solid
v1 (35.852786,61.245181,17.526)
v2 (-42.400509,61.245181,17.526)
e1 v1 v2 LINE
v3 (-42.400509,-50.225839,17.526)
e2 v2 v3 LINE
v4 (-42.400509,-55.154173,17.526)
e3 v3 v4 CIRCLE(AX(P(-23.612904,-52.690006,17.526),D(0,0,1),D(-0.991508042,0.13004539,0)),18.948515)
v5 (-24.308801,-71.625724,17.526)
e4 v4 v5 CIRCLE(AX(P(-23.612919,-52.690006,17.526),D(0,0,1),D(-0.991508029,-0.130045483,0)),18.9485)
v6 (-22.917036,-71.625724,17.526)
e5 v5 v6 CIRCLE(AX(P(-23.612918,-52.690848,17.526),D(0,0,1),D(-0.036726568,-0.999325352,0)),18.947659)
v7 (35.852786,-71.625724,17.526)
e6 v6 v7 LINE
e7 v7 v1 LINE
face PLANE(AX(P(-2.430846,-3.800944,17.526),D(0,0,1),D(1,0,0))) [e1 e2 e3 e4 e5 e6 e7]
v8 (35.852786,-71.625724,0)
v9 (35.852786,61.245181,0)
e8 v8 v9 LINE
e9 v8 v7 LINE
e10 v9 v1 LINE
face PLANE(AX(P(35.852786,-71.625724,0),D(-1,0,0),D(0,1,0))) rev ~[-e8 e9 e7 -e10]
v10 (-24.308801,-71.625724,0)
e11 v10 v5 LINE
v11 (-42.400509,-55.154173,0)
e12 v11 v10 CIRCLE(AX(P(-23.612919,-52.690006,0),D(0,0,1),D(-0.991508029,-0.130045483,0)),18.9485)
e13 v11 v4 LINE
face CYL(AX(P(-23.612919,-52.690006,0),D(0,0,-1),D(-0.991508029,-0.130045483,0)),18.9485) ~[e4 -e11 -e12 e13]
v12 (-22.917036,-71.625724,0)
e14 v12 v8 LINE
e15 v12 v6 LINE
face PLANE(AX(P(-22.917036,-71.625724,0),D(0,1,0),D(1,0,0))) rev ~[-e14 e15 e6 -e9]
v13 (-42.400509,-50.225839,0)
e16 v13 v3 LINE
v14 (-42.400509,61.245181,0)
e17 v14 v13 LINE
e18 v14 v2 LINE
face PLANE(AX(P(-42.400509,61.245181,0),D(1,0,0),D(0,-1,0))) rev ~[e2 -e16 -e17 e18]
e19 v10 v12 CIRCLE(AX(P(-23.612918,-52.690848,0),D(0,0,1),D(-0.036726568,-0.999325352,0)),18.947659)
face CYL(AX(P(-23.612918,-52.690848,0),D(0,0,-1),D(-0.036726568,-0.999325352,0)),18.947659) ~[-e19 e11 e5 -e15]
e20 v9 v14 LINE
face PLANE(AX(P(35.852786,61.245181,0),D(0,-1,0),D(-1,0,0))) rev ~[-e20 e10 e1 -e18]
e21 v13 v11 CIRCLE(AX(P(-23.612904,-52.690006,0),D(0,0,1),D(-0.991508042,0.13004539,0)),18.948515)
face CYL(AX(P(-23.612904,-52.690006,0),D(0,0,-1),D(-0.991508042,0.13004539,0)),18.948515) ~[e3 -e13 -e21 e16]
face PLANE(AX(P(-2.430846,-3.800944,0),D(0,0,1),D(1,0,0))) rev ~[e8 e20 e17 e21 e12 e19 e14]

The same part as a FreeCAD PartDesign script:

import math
import FreeCAD as App
import Part
import Sketcher

V = App.Vector
Q = App.Units.Quantity

doc = App.newDocument("Part")
params = doc.addObject("Spreadsheet::Sheet", "Params")
for row, (alias, value) in enumerate([
    ("pad1_length", "0.69 in"),
], start=1):
    params.set(f"A{row}", alias)
    params.set(f"B{row}", "=" + value)
    params.setAlias(f"B{row}", alias)

body = doc.addObject("PartDesign::Body", "Body")

# Sketch on XY plane
sketch1 = body.newObject("Sketcher::SketchObject", "Sketch")
sketch1.AttachmentSupport = (doc.getObject("XY_Plane"), [""])
sketch1.MapMode = "FlatFace"
sketch1.addGeometry([
    Part.LineSegment(V(35.852786, 61.245181, 0), V(-42.400509, 61.245181, 0)),  # 0
    Part.LineSegment(V(-42.400509, 61.245181, 0), V(-42.400509, -50.225839, 0)),  # 1
    Part.ArcOfCircle(Part.Circle(V(-23.612904, -52.690006, 0), V(0, 0, 1), 18.948515), math.radians(172.527785), math.radians(187.472215)),  # 2
    Part.ArcOfCircle(Part.Circle(V(-23.612919, -52.690006, 0), V(0, 0, 1), 18.9485), math.radians(-172.527779), math.radians(-92.104656)),  # 3
    Part.ArcOfCircle(Part.Circle(V(-23.612918, -52.690848, 0), V(0, 0, 1), 18.947659), math.radians(-92.104751), math.radians(-87.895249)),  # 4
    Part.LineSegment(V(-22.917036, -71.625724, 0), V(35.852786, -71.625724, 0)),  # 5
    Part.LineSegment(V(35.852786, -71.625724, 0), V(35.852786, 61.245181, 0)),  # 6
], False)
sketch1.addConstraint([
    Sketcher.Constraint("Coincident", 0, 2, 1, 1),
    Sketcher.Constraint("Coincident", 1, 2, 2, 1),
    Sketcher.Constraint("Coincident", 2, 2, 3, 1),
    Sketcher.Constraint("Coincident", 3, 2, 4, 1),
    Sketcher.Constraint("Coincident", 4, 2, 5, 1),
    Sketcher.Constraint("Coincident", 5, 2, 6, 1),
    Sketcher.Constraint("Coincident", 6, 2, 0, 1),
    Sketcher.Constraint("Horizontal", 0),
    Sketcher.Constraint("Vertical", 1),
    Sketcher.Constraint("Horizontal", 5),
    Sketcher.Constraint("Vertical", 6),
    Sketcher.Constraint("Radius", 3, Q("18.9485 mm")),
    Sketcher.Constraint("Radius", 4, Q("18.947659 mm")),
    Sketcher.Constraint("Radius", 2, Q("18.948515 mm")),
    Sketcher.Constraint("DistanceY", 1, 2, 1, 1, Q("111.47102 mm")),
    Sketcher.Constraint("DistanceX", 3, 2, -1, 1, Q("24.308801 mm")),
    Sketcher.Constraint("DistanceX", 0, 2, 0, 1, Q("78.253295 mm")),
    Sketcher.Constraint("DistanceX", 5, 1, 5, 2, Q("58.769822 mm")),
    Sketcher.Constraint("DistanceY", 6, 1, 6, 2, Q("132.870905 mm")),
    Sketcher.Constraint("DistanceX", 3, 3, -1, 1, Q("23.612919 mm")),
    Sketcher.Constraint("DistanceX", 4, 3, -1, 1, Q("23.612918 mm")),
    Sketcher.Constraint("DistanceX", 0, 2, -1, 1, Q("42.400509 mm")),
    Sketcher.Constraint("DistanceY", -1, 1, 0, 2, Q("61.245181 mm")),
    Sketcher.Constraint("DistanceX", 2, 2, -1, 1, Q("42.400509 mm")),
])
pad1 = body.newObject("PartDesign::Pad", "Pad")
pad1.Profile = sketch1
pad1.setExpression("Length", "Params.pad1_length")

doc.recompute()
